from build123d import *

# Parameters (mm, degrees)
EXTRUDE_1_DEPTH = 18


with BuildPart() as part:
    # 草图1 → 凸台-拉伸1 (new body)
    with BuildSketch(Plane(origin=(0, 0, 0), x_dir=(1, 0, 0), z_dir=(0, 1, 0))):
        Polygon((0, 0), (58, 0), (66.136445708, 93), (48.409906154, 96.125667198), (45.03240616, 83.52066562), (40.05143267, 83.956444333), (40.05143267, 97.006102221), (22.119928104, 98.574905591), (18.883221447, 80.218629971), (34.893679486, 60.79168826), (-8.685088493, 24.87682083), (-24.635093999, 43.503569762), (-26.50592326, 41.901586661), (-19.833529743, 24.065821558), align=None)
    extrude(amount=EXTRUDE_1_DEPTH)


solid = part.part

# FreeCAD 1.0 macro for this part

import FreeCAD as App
import Part
import Sketcher

V = App.Vector
Q = App.Units.Quantity


def add_polygon(sketch, points):
    """Adds a closed chain of lines whose ends are joined by coincident constraints."""
    first, n = sketch.GeometryCount, len(points)
    for a, b in zip(points, points[1:] + points[:1]):
        sketch.addGeometry(Part.LineSegment(App.Vector(*a, 0), App.Vector(*b, 0)), False)
    for i in range(n):
        sketch.addConstraint(Sketcher.Constraint("Coincident", first + i, 2, first + (i + 1) % n, 1))

doc = App.newDocument("Part")
params = doc.addObject("Spreadsheet::Sheet", "Params")
for row, (alias, value) in enumerate([
    ("sketch1_width", "58 mm"),
    ("sketch1_length", "18 mm"),
    ("sketch1_length2", "5 mm"),
    ("pad1_length", "18 mm"),
], start=1):
    params.set(f"A{row}", alias)
    params.set(f"B{row}", "=" + value)
    params.setAlias(f"B{row}", alias)

body = doc.addObject("PartDesign::Body", "Body")

sketch1 = doc.addObject("Sketcher::SketchObject", "Sketch")
body.addObject(sketch1)
sketch1.AttachmentSupport = (doc.XZ_Plane, [""])
sketch1.MapMode = "FlatFace"
add_polygon(sketch1, [(0, 0), (58, 0), (66.136446, -93), (48.409906, -96.125667), (45.032406, -83.520666), (40.051433, -83.956444), (40.051433, -97.006102), (22.119928, -98.574906), (18.883221, -80.21863), (34.893679, -60.791688), (-8.685088, -24.876821), (-24.635094, -43.50357), (-26.505923, -41.901587), (-19.83353, -24.065822)])
sketch1.addConstraint([
    Sketcher.Constraint("Horizontal", 0),
    Sketcher.Constraint("Vertical", 5),
    Sketcher.Constraint("Coincident", 13, 2, -1, 1),
    Sketcher.Constraint("Perpendicular", 1, 4),
    Sketcher.Constraint("Parallel", 4, 6),
    Sketcher.Constraint("Perpendicular", 2, 7),
    Sketcher.Constraint("Perpendicular", 8, 9),
    Sketcher.Constraint("Perpendicular", 10, 11),
    Sketcher.Constraint("Perpendicular", 9, 13),
    Sketcher.Constraint("Equal", 2, 6),
    Sketcher.Constraint("DistanceX", 0, 1, 0, 2, Q("58 mm")),
    Sketcher.Constraint("Angle", 1, Q("-85 deg")),
    Sketcher.Constraint("Angle", 2, Q("-170 deg")),
    Sketcher.Constraint("Angle", 3, Q("105 deg")),
    Sketcher.Constraint("Distance", 2, Q("18 mm")),
    Sketcher.Constraint("Distance", 4, Q("5 mm")),
    Sketcher.Constraint("DistanceY", 1, 2, -1, 1, Q("93 mm")),
    Sketcher.Constraint("DistanceY", 2, 2, 3, 2, Q("12.605002 mm")),
    Sketcher.Constraint("DistanceY", 9, 2, 12, 2, Q("0.810999 mm")),
    Sketcher.Constraint("DistanceY", 8, 2, 11, 2, Q("18.890102 mm")),
    Sketcher.Constraint("Distance", 7, Q("18.639451 mm")),
    Sketcher.Constraint("Distance", 8, Q("25.17421 mm")),
    Sketcher.Constraint("Distance", 10, Q("24.522611 mm")),
    Sketcher.Constraint("DistanceY", 5, 2, 5, 1, Q("13.049658 mm")),
    Sketcher.Constraint("DistanceX", -1, 1, 8, 2, Q("34.893679 mm")),
    Sketcher.Constraint("DistanceX", 9, 2, -1, 1, Q("8.685088 mm")),
    Sketcher.Constraint("DistanceY", 10, 2, -1, 1, Q("43.50357 mm")),
])
sketch1.setExpression("Constraints[24]", "Params.sketch1_width")
sketch1.setExpression("Constraints[28]", "Params.sketch1_length")
sketch1.setExpression("Constraints[29]", "Params.sketch1_length2")
pad1 = doc.addObject("PartDesign::Pad", "Pad")
body.addObject(pad1)
pad1.Profile = sketch1
pad1.setExpression("Length", "Params.pad1_length")
pad1.Reversed = True

doc.recompute()
